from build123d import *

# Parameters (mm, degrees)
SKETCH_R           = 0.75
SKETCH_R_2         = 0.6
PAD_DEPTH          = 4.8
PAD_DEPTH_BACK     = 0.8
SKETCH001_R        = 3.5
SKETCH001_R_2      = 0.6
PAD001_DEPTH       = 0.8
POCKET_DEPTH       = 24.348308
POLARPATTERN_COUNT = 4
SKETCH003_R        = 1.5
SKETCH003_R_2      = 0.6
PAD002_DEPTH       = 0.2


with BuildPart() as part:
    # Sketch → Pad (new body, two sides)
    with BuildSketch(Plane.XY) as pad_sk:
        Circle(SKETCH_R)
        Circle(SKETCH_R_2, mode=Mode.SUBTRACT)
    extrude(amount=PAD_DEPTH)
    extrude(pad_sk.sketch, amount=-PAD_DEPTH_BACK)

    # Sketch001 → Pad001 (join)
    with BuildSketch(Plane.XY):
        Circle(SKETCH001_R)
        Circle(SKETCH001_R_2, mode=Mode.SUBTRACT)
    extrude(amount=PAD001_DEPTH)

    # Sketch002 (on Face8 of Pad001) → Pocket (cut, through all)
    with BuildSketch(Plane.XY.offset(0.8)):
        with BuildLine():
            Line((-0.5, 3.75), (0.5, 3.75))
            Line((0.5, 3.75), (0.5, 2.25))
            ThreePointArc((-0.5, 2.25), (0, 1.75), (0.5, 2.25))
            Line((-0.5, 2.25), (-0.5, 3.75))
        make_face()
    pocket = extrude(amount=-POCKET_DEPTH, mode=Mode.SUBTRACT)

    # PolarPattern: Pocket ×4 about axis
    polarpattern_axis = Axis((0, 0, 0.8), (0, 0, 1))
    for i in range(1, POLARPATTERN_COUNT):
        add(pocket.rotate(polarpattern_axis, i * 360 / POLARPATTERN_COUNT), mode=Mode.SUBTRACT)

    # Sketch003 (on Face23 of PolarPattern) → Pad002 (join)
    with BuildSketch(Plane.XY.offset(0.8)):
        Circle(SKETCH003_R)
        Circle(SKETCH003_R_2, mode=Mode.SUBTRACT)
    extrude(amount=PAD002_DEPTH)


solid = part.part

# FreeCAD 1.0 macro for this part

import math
import FreeCAD as App
import Part
import Sketcher

V = App.Vector
Q = App.Units.Quantity

doc = App.newDocument("Part")
body = doc.addObject("PartDesign::Body", "Body")

# Sketch on XY plane
sketch1 = doc.addObject("Sketcher::SketchObject", "Sketch")
body.addObject(sketch1)
sketch1.AttachmentSupport = (doc.XY_Plane, [""])
sketch1.MapMode = "FlatFace"
sketch1.addGeometry([
    Part.Circle(V(0, 0, 0), V(0, 0, 1), 0.8),
    Part.Circle(V(0, 0, 0), V(0, 0, 1), 0.6),
], False)
sketch1.addConstraint([
    Sketcher.Constraint("Coincident", 0, 3, -1, 1),
    Sketcher.Constraint("Coincident", 1, 3, -1, 1),
    Sketcher.Constraint("Diameter", 0, Q("1.5 mm")),
    Sketcher.Constraint("Diameter", 1, Q("1.2 mm")),
])
pad1 = doc.addObject("PartDesign::Pad", "Pad")
body.addObject(pad1)
pad1.Profile = sketch1
pad1.Type = "TwoLengths"
pad1.Length = 4.8
pad1.Length2 = 0.8

# Sketch on XY plane
sketch2 = doc.addObject("Sketcher::SketchObject", "Sketch001")
body.addObject(sketch2)
sketch2.AttachmentSupport = (doc.XY_Plane, [""])
sketch2.MapMode = "FlatFace"
sketch2.addGeometry([
    Part.Circle(V(0, 0, 0), V(0, 0, 1), 3.5),
    Part.Circle(V(0, 0, 0), V(0, 0, 1), 0.6),
], False)
sketch2.addConstraint([
    Sketcher.Constraint("Coincident", 0, 3, -1, 1),
    Sketcher.Constraint("Coincident", 1, 3, -1, 1),
    Sketcher.Constraint("Diameter", 0, Q("7 mm")),
    Sketcher.Constraint("Diameter", 1, Q("1.2 mm")),
])
pad2 = doc.addObject("PartDesign::Pad", "Pad001")
body.addObject(pad2)
pad2.Profile = sketch2
pad2.Length = 0.8

# Sketch on XY plane
sketch3 = doc.addObject("Sketcher::SketchObject", "Sketch002")
body.addObject(sketch3)
sketch3.AttachmentSupport = (doc.XY_Plane, [""])
sketch3.MapMode = "FlatFace"
sketch3.AttachmentOffset = App.Placement(V(0, 0, 0.8), App.Rotation())
sketch3.addGeometry([
    Part.LineSegment(V(0.5, 3.8, 0), V(-0.5, 3.8, 0)),
    Part.LineSegment(V(-0.5, 3.8, 0), V(-0.5, 2.2, 0)),
    Part.ArcOfCircle(Part.Circle(V(0, 2.2, 0), V(0, 0, 1), 0.5), math.radians(180), math.radians(360)),
    Part.LineSegment(V(0.5, 2.2, 0), V(0.5, 3.8, 0)),
], False)
sketch3.addConstraint([
    Sketcher.Constraint("Coincident", 0, 2, 1, 1),
    Sketcher.Constraint("Tangent", 1, 2, 2, 1),
    Sketcher.Constraint("Tangent", 2, 2, 3, 1),
    Sketcher.Constraint("Coincident", 3, 2, 0, 1),
    Sketcher.Constraint("Horizontal", 0),
    Sketcher.Constraint("Vertical", 1),
    Sketcher.Constraint("Vertical", 3),
    Sketcher.Constraint("PointOnObject", 2, 3, -2),
    Sketcher.Constraint("Radius", 2, Q("0.5 mm")),
    Sketcher.Constraint("DistanceY", 1, 2, 1, 1, Q("1.5 mm")),
    Sketcher.Constraint("DistanceY", -1, 1, 2, 3, Q("2.25 mm")),
])
pocket1 = doc.addObject("PartDesign::Pocket", "Pocket")
body.addObject(pocket1)
pocket1.Profile = sketch3
pocket1.Type = "ThroughAll"
doc.recompute()

polarpattern = doc.addObject("PartDesign::PolarPattern", "PolarPattern")
body.addObject(polarpattern)
polarpattern.Originals = [pocket1]
polarpattern.Axis = (doc.Z_Axis, [""])
polarpattern.Angle = 360
polarpattern.Occurrences = 4
body.Tip = polarpattern

# Sketch on XY plane
sketch4 = doc.addObject("Sketcher::SketchObject", "Sketch003")
body.addObject(sketch4)
sketch4.AttachmentSupport = (doc.XY_Plane, [""])
sketch4.MapMode = "FlatFace"
sketch4.AttachmentOffset = App.Placement(V(0, 0, 0.8), App.Rotation())
sketch4.addGeometry([
    Part.Circle(V(0, 0, 0), V(0, 0, 1), 1.5),
    Part.Circle(V(0, 0, 0), V(0, 0, 1), 0.6),
], False)
sketch4.addConstraint([
    Sketcher.Constraint("Coincident", 0, 3, -1, 1),
    Sketcher.Constraint("Coincident", 1, 3, -1, 1),
    Sketcher.Constraint("Diameter", 0, Q("3 mm")),
    Sketcher.Constraint("Diameter", 1, Q("1.2 mm")),
])
pad3 = doc.addObject("PartDesign::Pad", "Pad002")
body.addObject(pad3)
pad3.Profile = sketch4
pad3.Length = 0.2

doc.recompute()
